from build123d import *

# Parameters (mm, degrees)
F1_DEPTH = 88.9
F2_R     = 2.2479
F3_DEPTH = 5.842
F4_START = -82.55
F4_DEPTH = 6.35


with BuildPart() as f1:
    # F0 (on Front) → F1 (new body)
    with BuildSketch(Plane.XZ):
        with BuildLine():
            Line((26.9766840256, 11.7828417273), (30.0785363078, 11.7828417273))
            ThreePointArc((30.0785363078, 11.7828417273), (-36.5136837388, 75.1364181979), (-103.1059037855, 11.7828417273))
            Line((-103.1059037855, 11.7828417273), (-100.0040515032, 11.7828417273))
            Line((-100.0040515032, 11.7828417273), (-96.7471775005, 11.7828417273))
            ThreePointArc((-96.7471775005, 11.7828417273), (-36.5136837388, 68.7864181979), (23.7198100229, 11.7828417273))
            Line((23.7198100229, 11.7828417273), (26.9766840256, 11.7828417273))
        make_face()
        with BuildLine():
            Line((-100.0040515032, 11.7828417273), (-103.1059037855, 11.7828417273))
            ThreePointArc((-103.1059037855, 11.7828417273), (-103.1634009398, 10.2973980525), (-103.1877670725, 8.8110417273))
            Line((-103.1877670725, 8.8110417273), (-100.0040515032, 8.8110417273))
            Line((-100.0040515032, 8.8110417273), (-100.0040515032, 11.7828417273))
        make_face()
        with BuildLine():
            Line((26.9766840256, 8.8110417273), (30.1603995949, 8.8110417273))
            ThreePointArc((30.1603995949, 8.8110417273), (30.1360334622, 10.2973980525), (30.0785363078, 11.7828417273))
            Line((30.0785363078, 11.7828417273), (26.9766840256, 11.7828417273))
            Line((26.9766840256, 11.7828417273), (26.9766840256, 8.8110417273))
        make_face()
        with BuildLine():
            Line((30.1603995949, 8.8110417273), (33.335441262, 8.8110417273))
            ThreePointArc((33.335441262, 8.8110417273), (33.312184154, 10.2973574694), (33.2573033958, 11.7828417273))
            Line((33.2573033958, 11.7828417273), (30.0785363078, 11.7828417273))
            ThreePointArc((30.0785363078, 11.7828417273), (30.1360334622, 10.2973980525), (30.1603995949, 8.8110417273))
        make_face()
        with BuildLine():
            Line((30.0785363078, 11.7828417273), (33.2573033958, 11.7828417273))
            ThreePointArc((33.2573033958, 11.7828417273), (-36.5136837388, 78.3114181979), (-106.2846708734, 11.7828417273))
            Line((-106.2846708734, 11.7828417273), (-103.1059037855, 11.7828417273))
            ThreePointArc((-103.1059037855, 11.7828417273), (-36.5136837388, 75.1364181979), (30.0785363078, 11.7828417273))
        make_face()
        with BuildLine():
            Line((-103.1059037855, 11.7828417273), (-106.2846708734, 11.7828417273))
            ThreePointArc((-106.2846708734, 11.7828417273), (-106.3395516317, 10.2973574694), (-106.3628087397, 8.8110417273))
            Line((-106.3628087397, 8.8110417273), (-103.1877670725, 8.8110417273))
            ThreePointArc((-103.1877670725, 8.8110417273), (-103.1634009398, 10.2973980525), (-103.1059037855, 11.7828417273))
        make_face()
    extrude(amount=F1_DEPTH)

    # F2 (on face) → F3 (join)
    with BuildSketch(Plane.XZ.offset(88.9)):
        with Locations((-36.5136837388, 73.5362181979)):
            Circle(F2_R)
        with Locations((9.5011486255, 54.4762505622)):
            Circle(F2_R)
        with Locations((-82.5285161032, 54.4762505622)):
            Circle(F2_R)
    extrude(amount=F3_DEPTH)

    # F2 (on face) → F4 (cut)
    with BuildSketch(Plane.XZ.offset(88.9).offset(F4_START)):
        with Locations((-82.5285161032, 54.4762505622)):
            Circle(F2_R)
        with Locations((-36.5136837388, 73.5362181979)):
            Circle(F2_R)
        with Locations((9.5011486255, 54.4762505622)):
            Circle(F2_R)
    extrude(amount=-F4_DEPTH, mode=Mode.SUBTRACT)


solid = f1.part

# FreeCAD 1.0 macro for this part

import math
import FreeCAD as App
import Part
import Sketcher

V = App.Vector
Q = App.Units.Quantity

doc = App.newDocument("Part")
body = doc.addObject("PartDesign::Body", "Body")

# Sketch on XZ plane
sketch1 = body.newObject("Sketcher::SketchObject", "Sketch")
sketch1.AttachmentSupport = (doc.getObject("XZ_Plane"), [""])
sketch1.MapMode = "FlatFace"
sketch1.addGeometry([
    Part.LineSegment(V(-100, 8.8, 0), V(-100, 11.8, 0)),  # 0
    Part.LineSegment(V(-100, 11.8, 0), V(-96.7, 11.8, 0)),  # 1
    Part.ArcOfCircle(Part.Circle(V(-36.5, 8.5, 0), V(0, 0, 1), 60.3), math.radians(3), math.radians(177)),  # 2
    Part.LineSegment(V(23.7, 11.8, 0), V(27, 11.8, 0)),  # 3
    Part.LineSegment(V(27, 11.8, 0), V(27, 8.8, 0)),  # 4
    Part.LineSegment(V(27, 8.8, 0), V(33.3, 8.8, 0)),  # 5
    Part.ArcOfCircle(Part.Circle(V(-36.5, 8.5, 0), V(0, 0, 1), 69.9), math.radians(0.29), math.radians(2.73)),  # 6
    Part.ArcOfCircle(Part.Circle(V(-36.5, 8.5, 0), V(0, 0, 1), 69.8), math.radians(3), math.radians(177)),  # 7
    Part.ArcOfCircle(Part.Circle(V(-36.5, 8.5, 0), V(0, 0, 1), 69.8), math.radians(177.27), math.radians(179.71)),  # 8
    Part.LineSegment(V(-106.4, 8.8, 0), V(-100, 8.8, 0)),  # 9
], False)
sketch1.addConstraint([
    Sketcher.Constraint("Coincident", 0, 2, 1, 1),
    Sketcher.Constraint("Coincident", 1, 2, 2, 2),
    Sketcher.Constraint("Coincident", 2, 1, 3, 1),
    Sketcher.Constraint("Coincident", 3, 2, 4, 1),
    Sketcher.Constraint("Coincident", 4, 2, 5, 1),
    Sketcher.Constraint("Coincident", 5, 2, 6, 1),
    Sketcher.Constraint("Tangent", 6, 2, 7, 1),
    Sketcher.Constraint("Tangent", 7, 2, 8, 1),
    Sketcher.Constraint("Coincident", 8, 2, 9, 1),
    Sketcher.Constraint("Coincident", 9, 2, 0, 1),
    Sketcher.Constraint("Vertical", 0),
    Sketcher.Constraint("Horizontal", 1),
    Sketcher.Constraint("Horizontal", 3),
    Sketcher.Constraint("Vertical", 4),
    Sketcher.Constraint("Horizontal", 5),
    Sketcher.Constraint("Horizontal", 9),
    Sketcher.Constraint("Coincident", 6, 3, 2, 3),
    Sketcher.Constraint("Coincident", 8, 3, 2, 3),
    Sketcher.Constraint("Horizontal", 1, 2, 2, 1),
    Sketcher.Constraint("Horizontal", 3, 2, 6, 2),
    Sketcher.Constraint("Horizontal", 6, 2, 7, 2),
    Sketcher.Constraint("Horizontal", 5, 2, 8, 2),
    Sketcher.Constraint("Equal", 1, 3),
    Sketcher.Constraint("Radius", 6, Q("2.75 in")),
    Sketcher.Constraint("Radius", 2, Q("2.375 in")),
    Sketcher.Constraint("DistanceY", 0, 1, 0, 2, Q("0.117 in")),
    Sketcher.Constraint("DistanceX", 1, 1, 1, 2, Q("3.256874 mm")),
    Sketcher.Constraint("DistanceX", 5, 1, 5, 2, Q("6.358757 mm")),
    Sketcher.Constraint("DistanceY", -1, 1, 2, 3, Q("8.461418 mm")),
    Sketcher.Constraint("DistanceX", 0, 2, -1, 1, Q("100.004052 mm")),
])
pad1 = body.newObject("PartDesign::Pad", "Pad")
pad1.Profile = sketch1
pad1.Length = Q("3.5 in")

# Sketch on XZ plane
sketch2 = body.newObject("Sketcher::SketchObject", "Sketch001")
sketch2.AttachmentSupport = (doc.getObject("XZ_Plane"), [""])
sketch2.MapMode = "FlatFace"
sketch2.AttachmentOffset = App.Placement(V(0, 0, 3.5 * 25.4), App.Rotation())
sketch2.addGeometry([
    Part.Circle(V(-36.5, 73.5, 0), V(0, 0, 1), 2.2),
    Part.Circle(V(9.5, 54.5, 0), V(0, 0, 1), 2.2),
    Part.Circle(V(-82.5, 54.5, 0), V(0, 0, 1), 2.2),
], False)
sketch2.addConstraint([
    Sketcher.Constraint("Equal", 0, 1),
    Sketcher.Constraint("Equal", 1, 2),
    Sketcher.Constraint("Horizontal", 1, 3, 2, 3),
    Sketcher.Constraint("Diameter", 0, Q("0.177 in")),
    Sketcher.Constraint("DistanceY", -1, 1, 0, 3, Q("73.536218 mm")),
    Sketcher.Constraint("DistanceX", -1, 1, 1, 3, Q("9.501149 mm")),
    Sketcher.Constraint("DistanceY", -1, 1, 1, 3, Q("54.476251 mm")),
    Sketcher.Constraint("DistanceX", 0, 3, -1, 1, Q("36.513684 mm")),
    Sketcher.Constraint("DistanceX", 2, 3, -1, 1, Q("82.528516 mm")),
])
pad2 = body.newObject("PartDesign::Pad", "Pad001")
pad2.Profile = sketch2
pad2.Length = Q("0.23 in")

# Sketch on XZ plane
sketch3 = body.newObject("Sketcher::SketchObject", "Sketch002")
sketch3.AttachmentSupport = (doc.getObject("XZ_Plane"), [""])
sketch3.MapMode = "FlatFace"
sketch3.AttachmentOffset = App.Placement(V(0, 0, 0.25 * 25.4), App.Rotation())
sketch3.addGeometry([
    Part.Circle(V(-82.5, 54.5, 0), V(0, 0, 1), 2.2),
    Part.Circle(V(-36.5, 73.5, 0), V(0, 0, 1), 2.2),
    Part.Circle(V(9.5, 54.5, 0), V(0, 0, 1), 2.2),
], False)
sketch3.addConstraint([
    Sketcher.Constraint("Equal", 0, 1),
    Sketcher.Constraint("Equal", 1, 2),
    Sketcher.Constraint("Horizontal", 0, 3, 2, 3),
    Sketcher.Constraint("Diameter", 0, Q("0.177 in")),
    Sketcher.Constraint("DistanceY", -1, 1, 0, 3, Q("54.476251 mm")),
    Sketcher.Constraint("DistanceY", -1, 1, 1, 3, Q("73.536218 mm")),
    Sketcher.Constraint("DistanceX", -1, 1, 2, 3, Q("9.501149 mm")),
    Sketcher.Constraint("DistanceX", 0, 3, -1, 1, Q("82.528516 mm")),
    Sketcher.Constraint("DistanceX", 1, 3, -1, 1, Q("36.513684 mm")),
])
pocket1 = body.newObject("PartDesign::Pocket", "Pocket")
pocket1.Profile = sketch3
pocket1.Length = Q("0.25 in")

doc.recompute()
